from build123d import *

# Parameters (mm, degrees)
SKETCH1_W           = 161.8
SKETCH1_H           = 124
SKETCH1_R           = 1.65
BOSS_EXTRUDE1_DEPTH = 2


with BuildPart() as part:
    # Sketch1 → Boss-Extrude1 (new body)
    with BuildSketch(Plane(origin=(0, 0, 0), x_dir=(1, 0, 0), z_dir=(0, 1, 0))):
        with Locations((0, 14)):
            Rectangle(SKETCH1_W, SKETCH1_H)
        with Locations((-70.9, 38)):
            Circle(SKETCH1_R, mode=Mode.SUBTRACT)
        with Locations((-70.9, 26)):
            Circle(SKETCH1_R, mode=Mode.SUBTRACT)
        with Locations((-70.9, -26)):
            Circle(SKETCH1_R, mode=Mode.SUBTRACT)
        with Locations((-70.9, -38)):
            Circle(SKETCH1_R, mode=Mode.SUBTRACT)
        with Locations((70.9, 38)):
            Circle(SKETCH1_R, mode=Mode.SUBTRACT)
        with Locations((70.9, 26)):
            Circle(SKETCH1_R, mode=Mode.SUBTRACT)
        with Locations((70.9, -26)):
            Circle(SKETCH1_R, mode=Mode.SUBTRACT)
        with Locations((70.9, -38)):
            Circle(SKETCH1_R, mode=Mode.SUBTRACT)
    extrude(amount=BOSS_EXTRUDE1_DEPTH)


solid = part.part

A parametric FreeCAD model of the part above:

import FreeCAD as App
import Part
import Sketcher

V = App.Vector

doc = App.newDocument("Part")
body = doc.addObject("PartDesign::Body", "Body")

# Sketch on XZ plane
sketch1 = doc.addObject("Sketcher::SketchObject", "Sketch")
body.addObject(sketch1)
sketch1.AttachmentSupport = (doc.XZ_Plane, [""])
sketch1.MapMode = "FlatFace"
sketch1.addGeometry(Part.LineSegment(V(-80.9, -76, 0), V(-80.9, 48, 0)), False)
sketch1.addGeometry(Part.LineSegment(V(-80.9, 48, 0), V(80.9, 48, 0)), False)
sketch1.addGeometry(Part.LineSegment(V(80.9, 48, 0), V(80.9, -76, 0)), False)
sketch1.addGeometry(Part.LineSegment(V(80.9, -76, 0), V(-80.9, -76, 0)), False)
sketch1.addGeometry(Part.Circle(V(-70.9, 38, 0), V(0, 0, 1), 1.6), False)
sketch1.addGeometry(Part.Circle(V(-70.9, 26, 0), V(0, 0, 1), 1.6), False)
sketch1.addGeometry(Part.Circle(V(70.9, 38, 0), V(0, 0, 1), 1.6), False)
sketch1.addGeometry(Part.Circle(V(70.9, 26, 0), V(0, 0, 1), 1.6), False)
sketch1.addGeometry(Part.Circle(V(-70.9, -26, 0), V(0, 0, 1), 1.6), False)
sketch1.addGeometry(Part.Circle(V(-70.9, -38, 0), V(0, 0, 1), 1.6), False)
sketch1.addGeometry(Part.Circle(V(70.9, -26, 0), V(0, 0, 1), 1.6), False)
sketch1.addGeometry(Part.Circle(V(70.9, -38, 0), V(0, 0, 1), 1.6), False)
sketch1.addConstraint(Sketcher.Constraint("Coincident", 0, 2, 1, 1))
sketch1.addConstraint(Sketcher.Constraint("Coincident", 1, 2, 2, 1))
sketch1.addConstraint(Sketcher.Constraint("Coincident", 2, 2, 3, 1))
sketch1.addConstraint(Sketcher.Constraint("Coincident", 3, 2, 0, 1))
sketch1.addConstraint(Sketcher.Constraint("Vertical", 0))
sketch1.addConstraint(Sketcher.Constraint("Horizontal", 1))
sketch1.addConstraint(Sketcher.Constraint("Vertical", 2))
sketch1.addConstraint(Sketcher.Constraint("Horizontal", 3))
sketch1.addConstraint(Sketcher.Constraint("Equal", 4, 5))
sketch1.addConstraint(Sketcher.Constraint("Equal", 5, 6))
sketch1.addConstraint(Sketcher.Constraint("Equal", 6, 7))
sketch1.addConstraint(Sketcher.Constraint("Equal", 7, 8))
sketch1.addConstraint(Sketcher.Constraint("Equal", 8, 9))
sketch1.addConstraint(Sketcher.Constraint("Equal", 9, 10))
sketch1.addConstraint(Sketcher.Constraint("Equal", 10, 11))
sketch1.addConstraint(Sketcher.Constraint("Symmetric", 7, 3, 8, 3, -1, 1))
sketch1.addConstraint(Sketcher.Constraint("Symmetric", 6, 3, 9, 3, -1, 1))
sketch1.addConstraint(Sketcher.Constraint("Symmetric", 5, 3, 10, 3, -1, 1))
sketch1.addConstraint(Sketcher.Constraint("Symmetric", 4, 3, 11, 3, -1, 1))
sketch1.addConstraint(Sketcher.Constraint("Symmetric", 4, 3, 6, 3, -2))
sketch1.addConstraint(Sketcher.Constraint("Symmetric", 5, 3, 7, 3, -2))
sketch1.addConstraint(Sketcher.Constraint("Vertical", 4, 3, 5, 3))
sketch1.addConstraint(Sketcher.Constraint("Diameter", 4, 3.3))
sketch1.addConstraint(Sketcher.Constraint("DistanceY", 0, 1, 0, 2, 124.0))
sketch1.addConstraint(Sketcher.Constraint("DistanceX", 1, 1, 1, 2, 161.8))
sketch1.addConstraint(Sketcher.Constraint("DistanceY", -1, 1, 4, 3, 38.0))
sketch1.addConstraint(Sketcher.Constraint("DistanceY", -1, 1, 5, 3, 26.0))
sketch1.addConstraint(Sketcher.Constraint("DistanceY", -1, 1, 0, 2, 48.0))
sketch1.addConstraint(Sketcher.Constraint("DistanceX", 0, 2, 4, 3, 10.0))
sketch1.addConstraint(Sketcher.Constraint("DistanceX", 6, 3, 1, 2, 10.0))
pad1 = doc.addObject("PartDesign::Pad", "Pad")
body.addObject(pad1)
pad1.Profile = sketch1
pad1.Length = 2
pad1.Reversed = True

doc.recompute()
